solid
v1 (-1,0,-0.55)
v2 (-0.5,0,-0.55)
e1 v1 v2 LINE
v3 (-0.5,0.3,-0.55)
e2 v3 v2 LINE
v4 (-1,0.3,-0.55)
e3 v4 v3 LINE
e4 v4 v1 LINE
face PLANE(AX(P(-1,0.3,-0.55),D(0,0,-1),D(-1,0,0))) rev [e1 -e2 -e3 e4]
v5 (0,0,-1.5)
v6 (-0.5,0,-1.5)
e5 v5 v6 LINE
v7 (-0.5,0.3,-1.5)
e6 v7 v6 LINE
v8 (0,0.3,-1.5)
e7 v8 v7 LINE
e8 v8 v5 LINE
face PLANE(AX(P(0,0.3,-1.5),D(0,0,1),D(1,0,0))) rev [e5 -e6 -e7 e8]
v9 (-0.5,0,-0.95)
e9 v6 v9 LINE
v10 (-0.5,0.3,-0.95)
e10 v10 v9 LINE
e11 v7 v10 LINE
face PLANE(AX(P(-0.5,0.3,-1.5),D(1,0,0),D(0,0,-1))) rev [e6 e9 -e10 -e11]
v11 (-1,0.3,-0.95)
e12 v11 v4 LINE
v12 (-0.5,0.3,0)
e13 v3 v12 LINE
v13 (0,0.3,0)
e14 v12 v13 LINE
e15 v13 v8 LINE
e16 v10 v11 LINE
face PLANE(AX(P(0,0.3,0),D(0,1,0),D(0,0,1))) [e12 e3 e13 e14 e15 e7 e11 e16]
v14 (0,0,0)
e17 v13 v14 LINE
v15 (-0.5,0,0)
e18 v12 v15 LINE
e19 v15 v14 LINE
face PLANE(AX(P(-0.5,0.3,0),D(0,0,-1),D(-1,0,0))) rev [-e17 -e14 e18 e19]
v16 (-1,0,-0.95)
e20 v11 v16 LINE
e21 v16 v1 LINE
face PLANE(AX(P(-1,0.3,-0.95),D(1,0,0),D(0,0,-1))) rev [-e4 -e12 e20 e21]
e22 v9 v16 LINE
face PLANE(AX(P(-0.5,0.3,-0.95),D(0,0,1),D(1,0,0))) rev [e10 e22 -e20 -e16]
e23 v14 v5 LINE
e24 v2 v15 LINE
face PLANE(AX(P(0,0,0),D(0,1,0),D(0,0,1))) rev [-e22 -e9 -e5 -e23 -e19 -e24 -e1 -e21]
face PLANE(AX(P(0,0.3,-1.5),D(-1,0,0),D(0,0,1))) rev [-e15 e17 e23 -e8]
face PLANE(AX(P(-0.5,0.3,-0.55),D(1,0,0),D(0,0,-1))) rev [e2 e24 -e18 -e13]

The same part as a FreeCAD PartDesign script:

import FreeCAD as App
import Part
import Sketcher

V = App.Vector


def add_polygon(sketch, points):
    """Adds a closed chain of lines whose ends are joined by coincident constraints."""
    first, n = sketch.GeometryCount, len(points)
    for a, b in zip(points, points[1:] + points[:1]):
        sketch.addGeometry(Part.LineSegment(App.Vector(*a, 0), App.Vector(*b, 0)), False)
    for i in range(n):
        sketch.addConstraint(Sketcher.Constraint("Coincident", first + i, 2, first + (i + 1) % n, 1))

doc = App.newDocument("Part")
body = doc.addObject("PartDesign::Body", "Body")

# Sketch on XZ plane
sketch1 = body.newObject("Sketcher::SketchObject", "Sketch")
sketch1.AttachmentSupport = (doc.getObject("XZ_Plane"), [""])
sketch1.MapMode = "FlatFace"
add_polygon(sketch1, [(0, -1.5), (-0.5, -1.5), (-0.5, -0.95), (-1, -0.95), (-1, -0.55), (-0.5, -0.55), (-0.5, 0), (0, 0)])  # lines 0-7
sketch1.addConstraint(Sketcher.Constraint("Horizontal", 0))
sketch1.addConstraint(Sketcher.Constraint("Vertical", 1))
sketch1.addConstraint(Sketcher.Constraint("Horizontal", 2))
sketch1.addConstraint(Sketcher.Constraint("Vertical", 3))
sketch1.addConstraint(Sketcher.Constraint("Horizontal", 4))
sketch1.addConstraint(Sketcher.Constraint("Vertical", 5))
sketch1.addConstraint(Sketcher.Constraint("Horizontal", 6))
sketch1.addConstraint(Sketcher.Constraint("Vertical", 7))
sketch1.addConstraint(Sketcher.Constraint("Coincident", 6, 2, -1, 1))
sketch1.addConstraint(Sketcher.Constraint("Vertical", 1, 2, 4, 2))
sketch1.addConstraint(Sketcher.Constraint("Equal", 0, 2))
sketch1.addConstraint(Sketcher.Constraint("Equal", 1, 5))
sketch1.addConstraint(Sketcher.Constraint("DistanceX", 0, 2, 0, 1, 0.5))
sketch1.addConstraint(Sketcher.Constraint("DistanceY", 3, 1, 3, 2, 0.4))
sketch1.addConstraint(Sketcher.Constraint("DistanceY", 7, 2, 7, 1, 1.5))
pad1 = body.newObject("PartDesign::Pad", "Pad")
pad1.Profile = sketch1
pad1.Length = 0.3
pad1.Reversed = True

doc.recompute()
